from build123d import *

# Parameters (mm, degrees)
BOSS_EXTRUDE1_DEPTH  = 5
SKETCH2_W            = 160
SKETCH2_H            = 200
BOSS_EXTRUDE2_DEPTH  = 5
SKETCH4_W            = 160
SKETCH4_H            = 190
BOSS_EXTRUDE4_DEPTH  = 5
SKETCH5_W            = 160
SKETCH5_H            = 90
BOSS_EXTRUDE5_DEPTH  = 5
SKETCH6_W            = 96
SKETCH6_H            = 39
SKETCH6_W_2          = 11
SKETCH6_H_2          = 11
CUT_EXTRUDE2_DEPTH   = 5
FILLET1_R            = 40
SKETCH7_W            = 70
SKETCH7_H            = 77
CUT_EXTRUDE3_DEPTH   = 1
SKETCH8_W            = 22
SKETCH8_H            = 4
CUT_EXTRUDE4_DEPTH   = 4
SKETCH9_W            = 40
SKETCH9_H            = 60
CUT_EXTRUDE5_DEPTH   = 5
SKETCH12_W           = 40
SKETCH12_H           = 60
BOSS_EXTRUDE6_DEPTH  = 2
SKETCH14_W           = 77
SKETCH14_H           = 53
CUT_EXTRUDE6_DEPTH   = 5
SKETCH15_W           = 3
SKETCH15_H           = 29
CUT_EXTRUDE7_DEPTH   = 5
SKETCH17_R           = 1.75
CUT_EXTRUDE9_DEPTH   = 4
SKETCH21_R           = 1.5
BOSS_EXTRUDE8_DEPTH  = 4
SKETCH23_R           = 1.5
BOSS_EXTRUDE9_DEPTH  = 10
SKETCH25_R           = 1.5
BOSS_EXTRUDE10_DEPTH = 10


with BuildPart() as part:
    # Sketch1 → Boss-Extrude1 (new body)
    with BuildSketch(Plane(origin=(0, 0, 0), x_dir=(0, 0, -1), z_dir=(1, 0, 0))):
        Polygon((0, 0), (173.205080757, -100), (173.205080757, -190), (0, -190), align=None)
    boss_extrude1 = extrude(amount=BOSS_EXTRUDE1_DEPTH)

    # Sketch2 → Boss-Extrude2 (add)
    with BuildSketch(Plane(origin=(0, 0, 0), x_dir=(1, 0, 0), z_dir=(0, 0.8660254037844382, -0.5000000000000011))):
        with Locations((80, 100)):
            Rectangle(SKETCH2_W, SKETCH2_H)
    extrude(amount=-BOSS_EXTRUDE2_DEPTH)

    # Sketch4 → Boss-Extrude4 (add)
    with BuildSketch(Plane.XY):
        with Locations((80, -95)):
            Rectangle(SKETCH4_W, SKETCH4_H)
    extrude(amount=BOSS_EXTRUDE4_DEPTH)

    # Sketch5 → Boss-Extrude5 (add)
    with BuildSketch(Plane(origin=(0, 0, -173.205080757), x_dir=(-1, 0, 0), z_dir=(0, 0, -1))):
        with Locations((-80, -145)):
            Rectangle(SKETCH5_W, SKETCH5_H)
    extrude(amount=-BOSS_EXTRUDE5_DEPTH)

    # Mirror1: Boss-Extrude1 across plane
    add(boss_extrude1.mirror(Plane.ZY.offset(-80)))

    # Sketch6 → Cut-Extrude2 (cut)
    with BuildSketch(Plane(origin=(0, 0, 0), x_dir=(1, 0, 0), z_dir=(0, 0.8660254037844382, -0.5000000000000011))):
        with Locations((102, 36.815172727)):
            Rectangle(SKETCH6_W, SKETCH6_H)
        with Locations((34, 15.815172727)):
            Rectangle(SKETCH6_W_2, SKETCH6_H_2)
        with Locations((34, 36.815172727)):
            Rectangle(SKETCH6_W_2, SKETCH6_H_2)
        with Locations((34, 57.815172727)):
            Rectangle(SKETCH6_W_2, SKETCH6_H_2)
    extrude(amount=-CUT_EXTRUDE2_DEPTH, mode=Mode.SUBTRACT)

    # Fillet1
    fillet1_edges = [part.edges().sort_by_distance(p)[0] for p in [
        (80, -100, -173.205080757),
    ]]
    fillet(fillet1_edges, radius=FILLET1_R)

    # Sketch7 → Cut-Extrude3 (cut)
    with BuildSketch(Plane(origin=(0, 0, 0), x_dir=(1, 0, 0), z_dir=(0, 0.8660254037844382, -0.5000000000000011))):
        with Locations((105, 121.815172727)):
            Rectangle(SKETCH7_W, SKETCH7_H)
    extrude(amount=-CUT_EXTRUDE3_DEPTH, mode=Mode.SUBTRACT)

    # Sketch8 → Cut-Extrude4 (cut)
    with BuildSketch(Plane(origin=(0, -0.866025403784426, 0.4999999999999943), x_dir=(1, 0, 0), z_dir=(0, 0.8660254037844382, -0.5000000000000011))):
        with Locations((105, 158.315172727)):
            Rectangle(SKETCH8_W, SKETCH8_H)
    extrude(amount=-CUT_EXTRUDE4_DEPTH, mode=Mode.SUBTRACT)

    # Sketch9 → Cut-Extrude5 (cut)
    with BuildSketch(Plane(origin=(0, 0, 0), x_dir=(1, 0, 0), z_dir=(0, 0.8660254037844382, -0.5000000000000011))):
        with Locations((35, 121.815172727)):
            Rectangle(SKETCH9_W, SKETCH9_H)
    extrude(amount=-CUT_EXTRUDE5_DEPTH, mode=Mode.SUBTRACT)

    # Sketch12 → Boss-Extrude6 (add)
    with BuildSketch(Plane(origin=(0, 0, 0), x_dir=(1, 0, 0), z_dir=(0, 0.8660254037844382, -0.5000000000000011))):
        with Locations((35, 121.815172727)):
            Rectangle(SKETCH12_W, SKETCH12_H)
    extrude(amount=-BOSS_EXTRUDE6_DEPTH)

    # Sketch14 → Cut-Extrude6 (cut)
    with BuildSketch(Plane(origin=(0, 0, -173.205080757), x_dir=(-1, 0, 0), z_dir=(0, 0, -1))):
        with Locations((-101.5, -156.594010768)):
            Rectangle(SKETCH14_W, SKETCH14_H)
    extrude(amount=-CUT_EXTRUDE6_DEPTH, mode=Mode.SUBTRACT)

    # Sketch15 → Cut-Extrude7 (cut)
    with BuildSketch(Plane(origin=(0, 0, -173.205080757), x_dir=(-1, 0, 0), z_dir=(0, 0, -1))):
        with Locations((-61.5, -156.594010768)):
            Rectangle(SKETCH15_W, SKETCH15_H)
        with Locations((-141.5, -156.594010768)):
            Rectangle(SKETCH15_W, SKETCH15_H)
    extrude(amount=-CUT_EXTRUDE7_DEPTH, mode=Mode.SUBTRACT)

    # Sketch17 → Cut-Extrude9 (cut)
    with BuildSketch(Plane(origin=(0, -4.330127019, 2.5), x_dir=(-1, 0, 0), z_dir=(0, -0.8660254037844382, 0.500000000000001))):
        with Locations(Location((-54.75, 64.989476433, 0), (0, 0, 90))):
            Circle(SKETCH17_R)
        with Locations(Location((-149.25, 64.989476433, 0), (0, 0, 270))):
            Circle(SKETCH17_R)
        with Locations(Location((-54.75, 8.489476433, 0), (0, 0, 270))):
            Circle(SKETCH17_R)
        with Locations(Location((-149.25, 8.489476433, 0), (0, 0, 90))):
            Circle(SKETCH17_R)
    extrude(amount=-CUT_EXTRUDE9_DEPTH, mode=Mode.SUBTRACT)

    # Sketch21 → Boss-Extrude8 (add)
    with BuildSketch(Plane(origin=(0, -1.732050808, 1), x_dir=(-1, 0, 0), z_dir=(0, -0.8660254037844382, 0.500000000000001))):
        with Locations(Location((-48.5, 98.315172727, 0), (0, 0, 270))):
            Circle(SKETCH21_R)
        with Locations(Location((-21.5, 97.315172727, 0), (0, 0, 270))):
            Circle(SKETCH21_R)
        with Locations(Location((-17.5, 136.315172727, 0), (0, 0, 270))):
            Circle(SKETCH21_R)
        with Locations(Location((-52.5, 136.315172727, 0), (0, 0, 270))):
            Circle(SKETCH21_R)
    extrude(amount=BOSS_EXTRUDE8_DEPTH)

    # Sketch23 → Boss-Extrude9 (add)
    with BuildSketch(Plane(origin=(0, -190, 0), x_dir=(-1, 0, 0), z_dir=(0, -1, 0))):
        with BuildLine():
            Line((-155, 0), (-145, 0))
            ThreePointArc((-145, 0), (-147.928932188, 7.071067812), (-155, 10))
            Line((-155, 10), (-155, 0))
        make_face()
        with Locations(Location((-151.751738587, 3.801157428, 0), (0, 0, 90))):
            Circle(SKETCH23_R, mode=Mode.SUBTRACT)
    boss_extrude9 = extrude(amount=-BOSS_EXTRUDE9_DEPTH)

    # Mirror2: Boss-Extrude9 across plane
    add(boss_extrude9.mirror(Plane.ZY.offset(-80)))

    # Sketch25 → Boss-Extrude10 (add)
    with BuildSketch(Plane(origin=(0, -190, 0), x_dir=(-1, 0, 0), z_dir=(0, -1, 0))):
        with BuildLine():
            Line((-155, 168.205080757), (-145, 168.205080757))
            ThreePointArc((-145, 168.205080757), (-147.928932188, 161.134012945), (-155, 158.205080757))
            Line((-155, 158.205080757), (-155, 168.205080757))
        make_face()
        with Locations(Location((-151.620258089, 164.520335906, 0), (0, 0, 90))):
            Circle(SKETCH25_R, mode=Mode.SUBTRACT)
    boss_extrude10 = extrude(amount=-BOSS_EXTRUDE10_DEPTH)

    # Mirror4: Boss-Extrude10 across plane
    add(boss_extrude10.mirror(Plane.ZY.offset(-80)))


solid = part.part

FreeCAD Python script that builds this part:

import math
import FreeCAD as App
import Part
import Sketcher

V = App.Vector
Q = App.Units.Quantity


def edges_at(feature, points):
    """Names of the edges that pass closest to the given points."""
    edges = feature.Shape.Edges
    near = lambda p: min(range(len(edges)), key=lambda i: edges[i].distToShape(Part.Vertex(*p))[0])
    return sorted({f"Edge{near(p) + 1}" for p in points})


def add_polygon(sketch, points):
    """Adds a closed chain of lines whose ends are joined by coincident constraints."""
    first, n = sketch.GeometryCount, len(points)
    for a, b in zip(points, points[1:] + points[:1]):
        sketch.addGeometry(Part.LineSegment(App.Vector(*a, 0), App.Vector(*b, 0)), False)
    for i in range(n):
        sketch.addConstraint(Sketcher.Constraint("Coincident", first + i, 2, first + (i + 1) % n, 1))

doc = App.newDocument("Part")
body = doc.addObject("PartDesign::Body", "Body")

sketch1 = body.newObject("Sketcher::SketchObject", "Sketch")
sketch1.AttachmentSupport = (doc.getObject("YZ_Plane"), [""])
sketch1.MapMode = "FlatFace"
add_polygon(sketch1, [(-100, -173), (0, 0), (-190, 0), (-190, -173)])
sketch1.addConstraint([
    Sketcher.Constraint("Horizontal", 1),
    Sketcher.Constraint("Vertical", 2),
    Sketcher.Constraint("Horizontal", 3),
    Sketcher.Constraint("Coincident", 0, 2, -1, 1),
    Sketcher.Constraint("DistanceX", 1, 2, 1, 1, Q("190 mm")),
    Sketcher.Constraint("DistanceX", 3, 1, 3, 2, Q("90 mm")),
    Sketcher.Constraint("Angle", 0, Q("60 deg")),
])
pad1 = body.newObject("PartDesign::Pad", "Pad")
pad1.Profile = sketch1
pad1.Length = 5

sketch2 = body.newObject("Sketcher::SketchObject", "Sketch001")
sketch2.Placement = App.Placement(V(0, 0, 0), App.Rotation(V(1, 0, 0), V(0, -0.5, -0.866025404), V(0, 0.866025404, -0.5), "ZXY"))
add_polygon(sketch2, [(0, 200), (0, 0), (160, 0), (160, 200)])
sketch2.addConstraint([
    Sketcher.Constraint("Vertical", 0),
    Sketcher.Constraint("Horizontal", 1),
    Sketcher.Constraint("Vertical", 2),
    Sketcher.Constraint("Horizontal", 3),
    Sketcher.Constraint("Coincident", 0, 2, -1, 1),
    Sketcher.Constraint("DistanceX", 1, 1, 1, 2, Q("160 mm")),
    Sketcher.Constraint("DistanceY", 0, 2, 0, 1, Q("200 mm")),
])
pad2 = body.newObject("PartDesign::Pad", "Pad001")
pad2.Profile = sketch2
pad2.Length = 5
pad2.Reversed = True

sketch3 = body.newObject("Sketcher::SketchObject", "Sketch002")
sketch3.AttachmentSupport = (doc.getObject("XY_Plane"), [""])
sketch3.MapMode = "FlatFace"
add_polygon(sketch3, [(0, 0), (0, -190), (160, -190), (160, 0)])
sketch3.addConstraint([
    Sketcher.Constraint("Vertical", 0),
    Sketcher.Constraint("Horizontal", 1),
    Sketcher.Constraint("Vertical", 2),
    Sketcher.Constraint("Horizontal", 3),
    Sketcher.Constraint("Coincident", 3, 2, -1, 1),
    Sketcher.Constraint("DistanceX", 1, 1, 1, 2, Q("160 mm")),
    Sketcher.Constraint("DistanceY", 0, 2, 0, 1, Q("190 mm")),
])
pad3 = body.newObject("PartDesign::Pad", "Pad002")
pad3.Profile = sketch3
pad3.Length = 5

sketch4 = body.newObject("Sketcher::SketchObject", "Sketch003")
sketch4.AttachmentSupport = (doc.getObject("XY_Plane"), [""])
sketch4.MapMode = "FlatFace"
sketch4.AttachmentOffset = App.Placement(V(0, 0, -173.205081), App.Rotation())
add_polygon(sketch4, [(160, -100), (160, -190), (0, -190), (0, -100)])
sketch4.addConstraint([
    Sketcher.Constraint("Vertical", 0),
    Sketcher.Constraint("Horizontal", 1),
    Sketcher.Constraint("Vertical", 2),
    Sketcher.Constraint("Horizontal", 3),
    Sketcher.Constraint("PointOnObject", 1, 2, -2),
    Sketcher.Constraint("DistanceX", 1, 2, 1, 1, Q("160 mm")),
    Sketcher.Constraint("DistanceY", 0, 2, 0, 1, Q("90 mm")),
    Sketcher.Constraint("DistanceY", 0, 2, -1, 1, Q("190 mm")),
])
pad4 = body.newObject("PartDesign::Pad", "Pad003")
pad4.Profile = sketch4
pad4.Length = 5
doc.recompute()

datumplane = body.newObject("PartDesign::Plane", "DatumPlane")
datumplane.AttachmentSupport = (doc.getObject("YZ_Plane"), [""])
datumplane.MapMode = "FlatFace"
datumplane.AttachmentOffset = App.Placement(V(0, 0, 80), App.Rotation())
mirrored = body.newObject("PartDesign::Mirrored", "Mirrored")
mirrored.Originals = [pad1]
mirrored.MirrorPlane = (datumplane, [""])
body.Tip = mirrored

sketch5 = body.newObject("Sketcher::SketchObject", "Sketch004")
sketch5.Placement = App.Placement(V(0, 0, 0), App.Rotation(V(1, 0, 0), V(0, -0.5, -0.866025404), V(0, 0.866025404, -0.5), "ZXY"))
add_polygon(sketch5, [(54, 56), (54, 17), (150, 17), (150, 56)])
add_polygon(sketch5, [(28, 21), (28, 10), (40, 10), (40, 21)])
add_polygon(sketch5, [(28, 42), (28, 31), (40, 31), (40, 42)])
add_polygon(sketch5, [(28, 63), (28, 52), (40, 52), (40, 63)])
sketch5.addConstraint([
    Sketcher.Constraint("Vertical", 0),
    Sketcher.Constraint("Horizontal", 1),
    Sketcher.Constraint("Vertical", 2),
    Sketcher.Constraint("Horizontal", 3),
    Sketcher.Constraint("Vertical", 4),
    Sketcher.Constraint("Horizontal", 5),
    Sketcher.Constraint("Vertical", 6),
    Sketcher.Constraint("Horizontal", 7),
    Sketcher.Constraint("Vertical", 8),
    Sketcher.Constraint("Horizontal", 9),
    Sketcher.Constraint("Vertical", 10),
    Sketcher.Constraint("Horizontal", 11),
    Sketcher.Constraint("Vertical", 12),
    Sketcher.Constraint("Horizontal", 13),
    Sketcher.Constraint("Vertical", 14),
    Sketcher.Constraint("Horizontal", 15),
    Sketcher.Constraint("Vertical", 7, 2, 8, 2),
    Sketcher.Constraint("Vertical", 6, 2, 9, 2),
    Sketcher.Constraint("Vertical", 11, 2, 12, 2),
    Sketcher.Constraint("Vertical", 10, 2, 13, 2),
    Sketcher.Constraint("Equal", 15, 4),
    Sketcher.Constraint("Equal", 6, 8),
    Sketcher.Constraint("Equal", 10, 12),
    Sketcher.Constraint("DistanceX", 1, 1, 1, 2, Q("96 mm")),
    Sketcher.Constraint("DistanceX", 5, 1, 5, 2, Q("11 mm")),
    Sketcher.Constraint("DistanceY", 0, 2, 0, 1, Q("39 mm")),
    Sketcher.Constraint("DistanceX", -1, 1, 0, 2, Q("54 mm")),
    Sketcher.Constraint("DistanceY", 4, 2, 0, 2, Q("7 mm")),
    Sketcher.Constraint("DistanceY", 7, 2, 8, 2, Q("10 mm")),
    Sketcher.Constraint("DistanceY", 11, 2, 12, 2, Q("10 mm")),
    Sketcher.Constraint("DistanceX", -1, 1, 4, 2, Q("28.5 mm")),
    Sketcher.Constraint("DistanceY", -1, 1, 0, 2, Q("17.315173 mm")),
])
pocket1 = body.newObject("PartDesign::Pocket", "Pocket")
pocket1.Profile = sketch5
pocket1.Length = 5
doc.recompute()

fillet = body.newObject("PartDesign::Fillet", "Fillet")
fillet.Base = (pocket1, edges_at(pocket1, [(80, -100, -173.205)]))
fillet.Radius = 40

sketch6 = body.newObject("Sketcher::SketchObject", "Sketch005")
sketch6.Placement = App.Placement(V(0, 0, 0), App.Rotation(V(1, 0, 0), V(0, -0.5, -0.866025404), V(0, 0.866025404, -0.5), "ZXY"))
add_polygon(sketch6, [(70, 160), (70, 83), (140, 83), (140, 160)])
sketch6.addConstraint([
    Sketcher.Constraint("Vertical", 0),
    Sketcher.Constraint("Horizontal", 1),
    Sketcher.Constraint("Vertical", 2),
    Sketcher.Constraint("Horizontal", 3),
    Sketcher.Constraint("DistanceX", 1, 1, 1, 2, Q("70 mm")),
    Sketcher.Constraint("DistanceY", 0, 2, 0, 1, Q("77 mm")),
    Sketcher.Constraint("DistanceX", -1, 1, 0, 2, Q("70 mm")),
    Sketcher.Constraint("DistanceY", -1, 1, 0, 2, Q("83.315173 mm")),
])
pocket2 = body.newObject("PartDesign::Pocket", "Pocket001")
pocket2.Profile = sketch6
pocket2.Length = 1

sketch7 = body.newObject("Sketcher::SketchObject", "Sketch006")
sketch7.Placement = App.Placement(V(0, -0.866025, 0.5), App.Rotation(V(1, 0, 0), V(0, -0.5, -0.866025404), V(0, 0.866025404, -0.5), "ZXY"))
add_polygon(sketch7, [(94, 160.3), (94, 156.3), (116, 156.3), (116, 160.3)])
sketch7.addConstraint([
    Sketcher.Constraint("Vertical", 0),
    Sketcher.Constraint("Horizontal", 1),
    Sketcher.Constraint("Vertical", 2),
    Sketcher.Constraint("Horizontal", 3),
    Sketcher.Constraint("DistanceX", 1, 1, 1, 2, Q("22 mm")),
    Sketcher.Constraint("DistanceY", 0, 2, 0, 1, Q("4 mm")),
    Sketcher.Constraint("DistanceX", -1, 1, 0, 2, Q("94 mm")),
    Sketcher.Constraint("DistanceY", -1, 1, 0, 2, Q("156.315173 mm")),
])
pocket3 = body.newObject("PartDesign::Pocket", "Pocket002")
pocket3.Profile = sketch7
pocket3.Length = 4

sketch8 = body.newObject("Sketcher::SketchObject", "Sketch007")
sketch8.Placement = App.Placement(V(0, 0, 0), App.Rotation(V(1, 0, 0), V(0, -0.5, -0.866025404), V(0, 0.866025404, -0.5), "ZXY"))
add_polygon(sketch8, [(15, 152), (15, 92), (55, 92), (55, 152)])
sketch8.addConstraint([
    Sketcher.Constraint("Vertical", 0),
    Sketcher.Constraint("Horizontal", 1),
    Sketcher.Constraint("Vertical", 2),
    Sketcher.Constraint("Horizontal", 3),
    Sketcher.Constraint("DistanceX", 1, 1, 1, 2, Q("40 mm")),
    Sketcher.Constraint("DistanceY", 0, 2, 0, 1, Q("60 mm")),
    Sketcher.Constraint("DistanceX", -1, 1, 0, 2, Q("15 mm")),
    Sketcher.Constraint("DistanceY", -1, 1, 0, 2, Q("91.815173 mm")),
])
pocket4 = body.newObject("PartDesign::Pocket", "Pocket003")
pocket4.Profile = sketch8
pocket4.Length = 5

sketch9 = body.newObject("Sketcher::SketchObject", "Sketch008")
sketch9.Placement = App.Placement(V(0, 0, 0), App.Rotation(V(1, 0, 0), V(0, -0.5, -0.866025404), V(0, 0.866025404, -0.5), "ZXY"))
add_polygon(sketch9, [(15, 152), (15, 92), (55, 92), (55, 152)])
sketch9.addConstraint([
    Sketcher.Constraint("Vertical", 0),
    Sketcher.Constraint("Horizontal", 1),
    Sketcher.Constraint("Vertical", 2),
    Sketcher.Constraint("Horizontal", 3),
    Sketcher.Constraint("DistanceX", 1, 1, 1, 2, Q("40 mm")),
    Sketcher.Constraint("DistanceY", 0, 2, 0, 1, Q("60 mm")),
    Sketcher.Constraint("DistanceX", -1, 1, 0, 2, Q("15 mm")),
    Sketcher.Constraint("DistanceY", -1, 1, 0, 2, Q("91.815173 mm")),
])
pad5 = body.newObject("PartDesign::Pad", "Pad004")
pad5.Profile = sketch9
pad5.Length = 2
pad5.Reversed = True

sketch10 = body.newObject("Sketcher::SketchObject", "Sketch009")
sketch10.AttachmentSupport = (doc.getObject("XY_Plane"), [""])
sketch10.MapMode = "FlatFace"
sketch10.AttachmentOffset = App.Placement(V(0, 0, -173.205081), App.Rotation())
add_polygon(sketch10, [(140, -130), (140, -183), (63, -183), (63, -130)])
sketch10.addConstraint([
    Sketcher.Constraint("Vertical", 0),
    Sketcher.Constraint("Horizontal", 1),
    Sketcher.Constraint("Vertical", 2),
    Sketcher.Constraint("Horizontal", 3),
    Sketcher.Constraint("DistanceX", 1, 2, 1, 1, Q("77 mm")),
    Sketcher.Constraint("DistanceY", 0, 2, 0, 1, Q("53 mm")),
    Sketcher.Constraint("DistanceX", -1, 1, 0, 2, Q("140 mm")),
    Sketcher.Constraint("DistanceY", 0, 2, -1, 1, Q("183.094011 mm")),
])
pocket5 = body.newObject("PartDesign::Pocket", "Pocket004")
pocket5.Profile = sketch10
pocket5.Length = 5
pocket5.Reversed = True

sketch11 = body.newObject("Sketcher::SketchObject", "Sketch010")
sketch11.AttachmentSupport = (doc.getObject("XY_Plane"), [""])
sketch11.MapMode = "FlatFace"
sketch11.AttachmentOffset = App.Placement(V(0, 0, -173.205081), App.Rotation())
add_polygon(sketch11, [(63, -142.1), (63, -171.1), (60, -171.1), (60, -142.1)])
add_polygon(sketch11, [(143, -142.1), (143, -171.1), (140, -171.1), (140, -142.1)])
sketch11.addConstraint([
    Sketcher.Constraint("Vertical", 0),
    Sketcher.Constraint("Horizontal", 1),
    Sketcher.Constraint("Vertical", 2),
    Sketcher.Constraint("Horizontal", 3),
    Sketcher.Constraint("Vertical", 4),
    Sketcher.Constraint("Horizontal", 5),
    Sketcher.Constraint("Vertical", 6),
    Sketcher.Constraint("Horizontal", 7),
    Sketcher.Constraint("Horizontal", 1, 2, 4, 2),
    Sketcher.Constraint("Horizontal", 3, 2, 6, 2),
    Sketcher.Constraint("Equal", 3, 5),
    Sketcher.Constraint("DistanceX", 1, 2, 1, 1, Q("3 mm")),
    Sketcher.Constraint("DistanceY", 0, 2, 0, 1, Q("29 mm")),
    Sketcher.Constraint("DistanceX", -1, 1, 0, 2, Q("63 mm")),
    Sketcher.Constraint("DistanceX", -1, 1, 4, 2, Q("143 mm")),
    Sketcher.Constraint("DistanceY", 0, 2, -1, 1, Q("171.094011 mm")),
])
pocket6 = body.newObject("PartDesign::Pocket", "Pocket005")
pocket6.Profile = sketch11
pocket6.Length = 5
pocket6.Reversed = True

sketch12 = body.newObject("Sketcher::SketchObject", "Sketch011")
sketch12.Placement = App.Placement(V(0, -4.330127, 2.5), App.Rotation(V(-1, 0, 0), V(0, -0.5, -0.866025404), V(0, -0.866025404, 0.5), "ZXY"))
sketch12.addGeometry([
    Part.Circle(V(-54.8, 65, 0), V(0, 0, 1), 1.8),
    Part.Circle(V(-149.2, 65, 0), V(0, 0, 1), 1.8),
    Part.Circle(V(-54.8, 8.5, 0), V(0, 0, 1), 1.8),
    Part.Circle(V(-149.2, 8.5, 0), V(0, 0, 1), 1.8),
], False)
sketch12.addConstraint([
    Sketcher.Constraint("Equal", 0, 1),
    Sketcher.Constraint("Equal", 1, 2),
    Sketcher.Constraint("Equal", 2, 3),
    Sketcher.Constraint("Horizontal", 0, 3, 1, 3),
    Sketcher.Constraint("Horizontal", 2, 3, 3, 3),
    Sketcher.Constraint("Vertical", 0, 3, 2, 3),
    Sketcher.Constraint("Vertical", 1, 3, 3, 3),
    Sketcher.Constraint("Diameter", 0, Q("3.5 mm")),
    Sketcher.Constraint("DistanceX", 1, 3, 0, 3, Q("94.5 mm")),
    Sketcher.Constraint("DistanceY", 2, 3, 0, 3, Q("56.5 mm")),
    Sketcher.Constraint("DistanceX", 0, 3, -1, 1, Q("54.75 mm")),
    Sketcher.Constraint("DistanceY", -1, 1, 0, 3, Q("64.989476 mm")),
])
pocket7 = body.newObject("PartDesign::Pocket", "Pocket006")
pocket7.Profile = sketch12
pocket7.Length = 4

sketch13 = body.newObject("Sketcher::SketchObject", "Sketch012")
sketch13.Placement = App.Placement(V(0, -1.732051, 1), App.Rotation(V(-1, 0, 0), V(0, -0.5, -0.866025404), V(0, -0.866025404, 0.5), "ZXY"))
sketch13.addGeometry([
    Part.Circle(V(-48.5, 98.3, 0), V(0, 0, 1), 1.5),
    Part.Circle(V(-21.5, 97.3, 0), V(0, 0, 1), 1.5),
    Part.Circle(V(-17.5, 136.3, 0), V(0, 0, 1), 1.5),
    Part.Circle(V(-52.5, 136.3, 0), V(0, 0, 1), 1.5),
], False)
sketch13.addConstraint([
    Sketcher.Constraint("Equal", 0, 1),
    Sketcher.Constraint("Equal", 1, 2),
    Sketcher.Constraint("Equal", 2, 3),
    Sketcher.Constraint("Horizontal", 2, 3, 3, 3),
    Sketcher.Constraint("Diameter", 0, Q("3 mm")),
    Sketcher.Constraint("DistanceX", 0, 3, 1, 3, Q("27 mm")),
    Sketcher.Constraint("DistanceY", 1, 3, 0, 3, Q("1 mm")),
    Sketcher.Constraint("DistanceX", 1, 3, 2, 3, Q("4 mm")),
    Sketcher.Constraint("DistanceY", 1, 3, 2, 3, Q("39 mm")),
    Sketcher.Constraint("DistanceX", 3, 3, 2, 3, Q("35 mm")),
    Sketcher.Constraint("DistanceX", 0, 3, -1, 1, Q("48.5 mm")),
    Sketcher.Constraint("DistanceY", -1, 1, 0, 3, Q("98.315173 mm")),
])
pad6 = body.newObject("PartDesign::Pad", "Pad005")
pad6.Profile = sketch13
pad6.Length = 4

sketch14 = body.newObject("Sketcher::SketchObject", "Sketch013")
sketch14.AttachmentSupport = (doc.getObject("XZ_Plane"), [""])
sketch14.MapMode = "FlatFace"
sketch14.AttachmentOffset = App.Placement(V(0, 0, 190), App.Rotation())
sketch14.addGeometry([
    Part.LineSegment(V(155, 0, 0), V(145, 0, 0)),
    Part.ArcOfCircle(Part.Circle(V(155, 0, 0), V(0, 0, 1), 10), math.radians(180), math.radians(270)),
    Part.LineSegment(V(155, -10, 0), V(155, 0, 0)),
    Part.Circle(V(151.8, -3.8, 0), V(0, 0, 1), 1.5),
], False)
sketch14.addConstraint([
    Sketcher.Constraint("Coincident", 0, 2, 1, 1),
    Sketcher.Constraint("Coincident", 1, 2, 2, 1),
    Sketcher.Constraint("Coincident", 2, 2, 0, 1),
    Sketcher.Constraint("Horizontal", 0),
    Sketcher.Constraint("Vertical", 2),
    Sketcher.Constraint("Coincident", 2, 2, 1, 3),
    Sketcher.Constraint("PointOnObject", 1, 3, -1),
    Sketcher.Constraint("Diameter", 3, Q("3 mm")),
    Sketcher.Constraint("Radius", 1, Q("10 mm")),
    Sketcher.Constraint("DistanceX", -1, 1, 1, 3, Q("155 mm")),
    Sketcher.Constraint("DistanceX", -1, 1, 3, 3, Q("151.751739 mm")),
    Sketcher.Constraint("DistanceY", 3, 3, -1, 1, Q("3.801157 mm")),
])
pad7 = body.newObject("PartDesign::Pad", "Pad006")
pad7.Profile = sketch14
pad7.Length = 10
pad7.Reversed = True
doc.recompute()

datumplane2 = body.newObject("PartDesign::Plane", "DatumPlane001")
datumplane2.AttachmentSupport = (doc.getObject("YZ_Plane"), [""])
datumplane2.MapMode = "FlatFace"
datumplane2.AttachmentOffset = App.Placement(V(0, 0, 80), App.Rotation())
mirrored2 = body.newObject("PartDesign::Mirrored", "Mirrored001")
mirrored2.Originals = [pad7]
mirrored2.MirrorPlane = (datumplane2, [""])
body.Tip = mirrored2

sketch15 = body.newObject("Sketcher::SketchObject", "Sketch014")
sketch15.AttachmentSupport = (doc.getObject("XZ_Plane"), [""])
sketch15.MapMode = "FlatFace"
sketch15.AttachmentOffset = App.Placement(V(0, 0, 190), App.Rotation())
sketch15.addGeometry([
    Part.LineSegment(V(145, -168.2, 0), V(155, -168.2, 0)),
    Part.LineSegment(V(155, -168.2, 0), V(155, -158.2, 0)),
    Part.ArcOfCircle(Part.Circle(V(155, -168.2, 0), V(0, 0, 1), 10), math.radians(90), math.radians(180)),
    Part.Circle(V(151.6, -164.5, 0), V(0, 0, 1), 1.5),
], False)
sketch15.addConstraint([
    Sketcher.Constraint("Coincident", 0, 2, 1, 1),
    Sketcher.Constraint("Coincident", 1, 2, 2, 1),
    Sketcher.Constraint("Coincident", 2, 2, 0, 1),
    Sketcher.Constraint("Horizontal", 0),
    Sketcher.Constraint("Vertical", 1),
    Sketcher.Constraint("Coincident", 0, 2, 2, 3),
    Sketcher.Constraint("Diameter", 3, Q("3 mm")),
    Sketcher.Constraint("Radius", 2, Q("10 mm")),
    Sketcher.Constraint("DistanceX", -1, 1, 2, 3, Q("155 mm")),
    Sketcher.Constraint("DistanceY", 2, 3, -1, 1, Q("168.205081 mm")),
    Sketcher.Constraint("DistanceX", -1, 1, 3, 3, Q("151.620258 mm")),
    Sketcher.Constraint("DistanceY", 3, 3, -1, 1, Q("164.520336 mm")),
])
pad8 = body.newObject("PartDesign::Pad", "Pad007")
pad8.Profile = sketch15
pad8.Length = 10
pad8.Reversed = True
doc.recompute()

datumplane3 = body.newObject("PartDesign::Plane", "DatumPlane002")
datumplane3.AttachmentSupport = (doc.getObject("YZ_Plane"), [""])
datumplane3.MapMode = "FlatFace"
datumplane3.AttachmentOffset = App.Placement(V(0, 0, 80), App.Rotation())
mirrored3 = body.newObject("PartDesign::Mirrored", "Mirrored002")
mirrored3.Originals = [pad8]
mirrored3.MirrorPlane = (datumplane3, [""])
body.Tip = mirrored3

doc.recompute()
